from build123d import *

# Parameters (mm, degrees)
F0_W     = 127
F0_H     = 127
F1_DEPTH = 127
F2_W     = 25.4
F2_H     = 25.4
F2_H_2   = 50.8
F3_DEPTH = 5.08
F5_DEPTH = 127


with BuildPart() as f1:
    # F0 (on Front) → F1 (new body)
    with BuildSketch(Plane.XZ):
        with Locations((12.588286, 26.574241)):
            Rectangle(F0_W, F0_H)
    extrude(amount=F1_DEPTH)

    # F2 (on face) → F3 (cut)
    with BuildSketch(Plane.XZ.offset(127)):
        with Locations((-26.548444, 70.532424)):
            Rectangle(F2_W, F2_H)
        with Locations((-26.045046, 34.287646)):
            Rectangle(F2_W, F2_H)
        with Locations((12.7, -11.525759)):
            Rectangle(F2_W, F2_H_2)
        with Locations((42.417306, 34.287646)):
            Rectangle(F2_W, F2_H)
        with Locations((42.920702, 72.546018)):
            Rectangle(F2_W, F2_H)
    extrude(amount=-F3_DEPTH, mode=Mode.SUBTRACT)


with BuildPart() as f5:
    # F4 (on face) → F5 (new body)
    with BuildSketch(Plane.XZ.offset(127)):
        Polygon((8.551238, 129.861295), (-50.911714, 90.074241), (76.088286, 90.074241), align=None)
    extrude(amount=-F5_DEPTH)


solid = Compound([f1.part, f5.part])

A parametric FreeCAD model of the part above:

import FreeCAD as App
import Part
import Sketcher
Q = App.Units.Quantity


def add_polygon(sketch, points):
    """Adds a closed chain of lines whose ends are joined by coincident constraints."""
    first, n = sketch.GeometryCount, len(points)
    for a, b in zip(points, points[1:] + points[:1]):
        sketch.addGeometry(Part.LineSegment(App.Vector(*a, 0), App.Vector(*b, 0)), False)
    for i in range(n):
        sketch.addConstraint(Sketcher.Constraint("Coincident", first + i, 2, first + (i + 1) % n, 1))

doc = App.newDocument("Part")
body = doc.addObject("PartDesign::Body", "Body")

sketch1 = body.newObject("Sketcher::SketchObject", "Sketch")
sketch1.AttachmentSupport = (doc.getObject("XZ_Plane"), [""])
sketch1.MapMode = "FlatFace"
add_polygon(sketch1, [(-51, 90), (-51, -37), (76, -37), (76, 90)])
sketch1.addConstraint([
    Sketcher.Constraint("Vertical", 0),
    Sketcher.Constraint("Horizontal", 1),
    Sketcher.Constraint("Vertical", 2),
    Sketcher.Constraint("Horizontal", 3),
    Sketcher.Constraint("Equal", 3, 0),
    Sketcher.Constraint("DistanceX", 1, 1, 1, 2, Q("5 in")),
    Sketcher.Constraint("DistanceY", 0, 2, -1, 1, Q("36.925759 mm")),
    Sketcher.Constraint("DistanceX", 0, 2, -1, 1, Q("50.911714 mm")),
])
pad1 = body.newObject("PartDesign::Pad", "Pad")
pad1.Profile = sketch1
pad1.Length = Q("5 in")

sketch2 = body.newObject("Sketcher::SketchObject", "Sketch001")
sketch2.AttachmentSupport = (doc.getObject("XZ_Plane"), [""])
sketch2.MapMode = "FlatFace"
sketch2.AttachmentOffset = App.Placement(App.Vector(0, 0, 5 * 25.4), App.Rotation())
add_polygon(sketch2, [(-39, 83), (-39, 58), (-14, 58), (-14, 83)])
add_polygon(sketch2, [(-39, 47), (-39, 22), (-13, 22), (-13, 47)])
add_polygon(sketch2, [(0, 14), (0, -37), (25, -37), (25, 14)])
add_polygon(sketch2, [(30, 47), (30, 22), (55, 22), (55, 47)])
add_polygon(sketch2, [(30, 85), (30, 60), (56, 60), (56, 85)])
sketch2.addConstraint([
    Sketcher.Constraint("Vertical", 0),
    Sketcher.Constraint("Horizontal", 1),
    Sketcher.Constraint("Vertical", 2),
    Sketcher.Constraint("Horizontal", 3),
    Sketcher.Constraint("Vertical", 4),
    Sketcher.Constraint("Horizontal", 5),
    Sketcher.Constraint("Vertical", 6),
    Sketcher.Constraint("Horizontal", 7),
    Sketcher.Constraint("Vertical", 8),
    Sketcher.Constraint("Horizontal", 9),
    Sketcher.Constraint("Vertical", 10),
    Sketcher.Constraint("Horizontal", 11),
    Sketcher.Constraint("Vertical", 12),
    Sketcher.Constraint("Horizontal", 13),
    Sketcher.Constraint("Vertical", 14),
    Sketcher.Constraint("Horizontal", 15),
    Sketcher.Constraint("Vertical", 16),
    Sketcher.Constraint("Horizontal", 17),
    Sketcher.Constraint("Vertical", 18),
    Sketcher.Constraint("Horizontal", 19),
    Sketcher.Constraint("PointOnObject", 8, 2, -2),
    Sketcher.Constraint("Horizontal", 5, 2, 12, 2),
    Sketcher.Constraint("Horizontal", 7, 2, 14, 2),
    Sketcher.Constraint("Equal", 3, 5),
    Sketcher.Constraint("Equal", 7, 9),
    Sketcher.Constraint("Equal", 11, 13),
    Sketcher.Constraint("Equal", 15, 17),
    Sketcher.Constraint("Equal", 19, 0),
    Sketcher.Constraint("Equal", 2, 4),
    Sketcher.Constraint("Equal", 14, 16),
    Sketcher.Constraint("DistanceX", 1, 1, 1, 2, Q("1 in")),
    Sketcher.Constraint("DistanceY", 8, 2, 8, 1, Q("2 in")),
    Sketcher.Constraint("DistanceX", -1, 1, 16, 2, Q("30.220702 mm")),
    Sketcher.Constraint("DistanceX", 1, 2, 5, 2, Q("0.503398 mm")),
    Sketcher.Constraint("DistanceY", 8, 2, -1, 1, Q("36.925759 mm")),
    Sketcher.Constraint("DistanceY", -1, 1, 18, 2, Q("85.246018 mm")),
    Sketcher.Constraint("DistanceY", 4, 2, 0, 2, Q("36.244778 mm")),
    Sketcher.Constraint("DistanceX", 1, 2, 12, 2, Q("43.56575 mm")),
    Sketcher.Constraint("DistanceX", 0, 2, -1, 1, Q("39.248444 mm")),
    Sketcher.Constraint("DistanceY", -1, 1, 0, 2, Q("57.832424 mm")),
])
pocket1 = body.newObject("PartDesign::Pocket", "Pocket")
pocket1.Profile = sketch2
pocket1.Length = Q("0.2 in")
body2 = doc.addObject("PartDesign::Body", "Body001")

sketch3 = body2.newObject("Sketcher::SketchObject", "Sketch002")
sketch3.AttachmentSupport = (doc.getObject("XZ_Plane001"), [""])
sketch3.MapMode = "FlatFace"
sketch3.AttachmentOffset = App.Placement(App.Vector(0, 0, 5 * 25.4), App.Rotation())
add_polygon(sketch3, [(9, 130), (-51, 90), (76, 90)])
sketch3.addConstraint([
    Sketcher.Constraint("Horizontal", 1),
    Sketcher.Constraint("DistanceX", 1, 1, 1, 2, Q("5 in")),
    Sketcher.Constraint("DistanceY", -1, 1, 0, 2, Q("90.074241 mm")),
    Sketcher.Constraint("DistanceX", 2, 2, 1, 2, Q("67.537048 mm")),
    Sketcher.Constraint("Distance", 0, Q("71.546155 mm")),
    Sketcher.Constraint("DistanceX", 0, 2, -1, 1, Q("50.911714 mm")),
])
pad2 = body2.newObject("PartDesign::Pad", "Pad001")
pad2.Profile = sketch3
pad2.Length = Q("5 in")
pad2.Reversed = True

doc.recompute()
